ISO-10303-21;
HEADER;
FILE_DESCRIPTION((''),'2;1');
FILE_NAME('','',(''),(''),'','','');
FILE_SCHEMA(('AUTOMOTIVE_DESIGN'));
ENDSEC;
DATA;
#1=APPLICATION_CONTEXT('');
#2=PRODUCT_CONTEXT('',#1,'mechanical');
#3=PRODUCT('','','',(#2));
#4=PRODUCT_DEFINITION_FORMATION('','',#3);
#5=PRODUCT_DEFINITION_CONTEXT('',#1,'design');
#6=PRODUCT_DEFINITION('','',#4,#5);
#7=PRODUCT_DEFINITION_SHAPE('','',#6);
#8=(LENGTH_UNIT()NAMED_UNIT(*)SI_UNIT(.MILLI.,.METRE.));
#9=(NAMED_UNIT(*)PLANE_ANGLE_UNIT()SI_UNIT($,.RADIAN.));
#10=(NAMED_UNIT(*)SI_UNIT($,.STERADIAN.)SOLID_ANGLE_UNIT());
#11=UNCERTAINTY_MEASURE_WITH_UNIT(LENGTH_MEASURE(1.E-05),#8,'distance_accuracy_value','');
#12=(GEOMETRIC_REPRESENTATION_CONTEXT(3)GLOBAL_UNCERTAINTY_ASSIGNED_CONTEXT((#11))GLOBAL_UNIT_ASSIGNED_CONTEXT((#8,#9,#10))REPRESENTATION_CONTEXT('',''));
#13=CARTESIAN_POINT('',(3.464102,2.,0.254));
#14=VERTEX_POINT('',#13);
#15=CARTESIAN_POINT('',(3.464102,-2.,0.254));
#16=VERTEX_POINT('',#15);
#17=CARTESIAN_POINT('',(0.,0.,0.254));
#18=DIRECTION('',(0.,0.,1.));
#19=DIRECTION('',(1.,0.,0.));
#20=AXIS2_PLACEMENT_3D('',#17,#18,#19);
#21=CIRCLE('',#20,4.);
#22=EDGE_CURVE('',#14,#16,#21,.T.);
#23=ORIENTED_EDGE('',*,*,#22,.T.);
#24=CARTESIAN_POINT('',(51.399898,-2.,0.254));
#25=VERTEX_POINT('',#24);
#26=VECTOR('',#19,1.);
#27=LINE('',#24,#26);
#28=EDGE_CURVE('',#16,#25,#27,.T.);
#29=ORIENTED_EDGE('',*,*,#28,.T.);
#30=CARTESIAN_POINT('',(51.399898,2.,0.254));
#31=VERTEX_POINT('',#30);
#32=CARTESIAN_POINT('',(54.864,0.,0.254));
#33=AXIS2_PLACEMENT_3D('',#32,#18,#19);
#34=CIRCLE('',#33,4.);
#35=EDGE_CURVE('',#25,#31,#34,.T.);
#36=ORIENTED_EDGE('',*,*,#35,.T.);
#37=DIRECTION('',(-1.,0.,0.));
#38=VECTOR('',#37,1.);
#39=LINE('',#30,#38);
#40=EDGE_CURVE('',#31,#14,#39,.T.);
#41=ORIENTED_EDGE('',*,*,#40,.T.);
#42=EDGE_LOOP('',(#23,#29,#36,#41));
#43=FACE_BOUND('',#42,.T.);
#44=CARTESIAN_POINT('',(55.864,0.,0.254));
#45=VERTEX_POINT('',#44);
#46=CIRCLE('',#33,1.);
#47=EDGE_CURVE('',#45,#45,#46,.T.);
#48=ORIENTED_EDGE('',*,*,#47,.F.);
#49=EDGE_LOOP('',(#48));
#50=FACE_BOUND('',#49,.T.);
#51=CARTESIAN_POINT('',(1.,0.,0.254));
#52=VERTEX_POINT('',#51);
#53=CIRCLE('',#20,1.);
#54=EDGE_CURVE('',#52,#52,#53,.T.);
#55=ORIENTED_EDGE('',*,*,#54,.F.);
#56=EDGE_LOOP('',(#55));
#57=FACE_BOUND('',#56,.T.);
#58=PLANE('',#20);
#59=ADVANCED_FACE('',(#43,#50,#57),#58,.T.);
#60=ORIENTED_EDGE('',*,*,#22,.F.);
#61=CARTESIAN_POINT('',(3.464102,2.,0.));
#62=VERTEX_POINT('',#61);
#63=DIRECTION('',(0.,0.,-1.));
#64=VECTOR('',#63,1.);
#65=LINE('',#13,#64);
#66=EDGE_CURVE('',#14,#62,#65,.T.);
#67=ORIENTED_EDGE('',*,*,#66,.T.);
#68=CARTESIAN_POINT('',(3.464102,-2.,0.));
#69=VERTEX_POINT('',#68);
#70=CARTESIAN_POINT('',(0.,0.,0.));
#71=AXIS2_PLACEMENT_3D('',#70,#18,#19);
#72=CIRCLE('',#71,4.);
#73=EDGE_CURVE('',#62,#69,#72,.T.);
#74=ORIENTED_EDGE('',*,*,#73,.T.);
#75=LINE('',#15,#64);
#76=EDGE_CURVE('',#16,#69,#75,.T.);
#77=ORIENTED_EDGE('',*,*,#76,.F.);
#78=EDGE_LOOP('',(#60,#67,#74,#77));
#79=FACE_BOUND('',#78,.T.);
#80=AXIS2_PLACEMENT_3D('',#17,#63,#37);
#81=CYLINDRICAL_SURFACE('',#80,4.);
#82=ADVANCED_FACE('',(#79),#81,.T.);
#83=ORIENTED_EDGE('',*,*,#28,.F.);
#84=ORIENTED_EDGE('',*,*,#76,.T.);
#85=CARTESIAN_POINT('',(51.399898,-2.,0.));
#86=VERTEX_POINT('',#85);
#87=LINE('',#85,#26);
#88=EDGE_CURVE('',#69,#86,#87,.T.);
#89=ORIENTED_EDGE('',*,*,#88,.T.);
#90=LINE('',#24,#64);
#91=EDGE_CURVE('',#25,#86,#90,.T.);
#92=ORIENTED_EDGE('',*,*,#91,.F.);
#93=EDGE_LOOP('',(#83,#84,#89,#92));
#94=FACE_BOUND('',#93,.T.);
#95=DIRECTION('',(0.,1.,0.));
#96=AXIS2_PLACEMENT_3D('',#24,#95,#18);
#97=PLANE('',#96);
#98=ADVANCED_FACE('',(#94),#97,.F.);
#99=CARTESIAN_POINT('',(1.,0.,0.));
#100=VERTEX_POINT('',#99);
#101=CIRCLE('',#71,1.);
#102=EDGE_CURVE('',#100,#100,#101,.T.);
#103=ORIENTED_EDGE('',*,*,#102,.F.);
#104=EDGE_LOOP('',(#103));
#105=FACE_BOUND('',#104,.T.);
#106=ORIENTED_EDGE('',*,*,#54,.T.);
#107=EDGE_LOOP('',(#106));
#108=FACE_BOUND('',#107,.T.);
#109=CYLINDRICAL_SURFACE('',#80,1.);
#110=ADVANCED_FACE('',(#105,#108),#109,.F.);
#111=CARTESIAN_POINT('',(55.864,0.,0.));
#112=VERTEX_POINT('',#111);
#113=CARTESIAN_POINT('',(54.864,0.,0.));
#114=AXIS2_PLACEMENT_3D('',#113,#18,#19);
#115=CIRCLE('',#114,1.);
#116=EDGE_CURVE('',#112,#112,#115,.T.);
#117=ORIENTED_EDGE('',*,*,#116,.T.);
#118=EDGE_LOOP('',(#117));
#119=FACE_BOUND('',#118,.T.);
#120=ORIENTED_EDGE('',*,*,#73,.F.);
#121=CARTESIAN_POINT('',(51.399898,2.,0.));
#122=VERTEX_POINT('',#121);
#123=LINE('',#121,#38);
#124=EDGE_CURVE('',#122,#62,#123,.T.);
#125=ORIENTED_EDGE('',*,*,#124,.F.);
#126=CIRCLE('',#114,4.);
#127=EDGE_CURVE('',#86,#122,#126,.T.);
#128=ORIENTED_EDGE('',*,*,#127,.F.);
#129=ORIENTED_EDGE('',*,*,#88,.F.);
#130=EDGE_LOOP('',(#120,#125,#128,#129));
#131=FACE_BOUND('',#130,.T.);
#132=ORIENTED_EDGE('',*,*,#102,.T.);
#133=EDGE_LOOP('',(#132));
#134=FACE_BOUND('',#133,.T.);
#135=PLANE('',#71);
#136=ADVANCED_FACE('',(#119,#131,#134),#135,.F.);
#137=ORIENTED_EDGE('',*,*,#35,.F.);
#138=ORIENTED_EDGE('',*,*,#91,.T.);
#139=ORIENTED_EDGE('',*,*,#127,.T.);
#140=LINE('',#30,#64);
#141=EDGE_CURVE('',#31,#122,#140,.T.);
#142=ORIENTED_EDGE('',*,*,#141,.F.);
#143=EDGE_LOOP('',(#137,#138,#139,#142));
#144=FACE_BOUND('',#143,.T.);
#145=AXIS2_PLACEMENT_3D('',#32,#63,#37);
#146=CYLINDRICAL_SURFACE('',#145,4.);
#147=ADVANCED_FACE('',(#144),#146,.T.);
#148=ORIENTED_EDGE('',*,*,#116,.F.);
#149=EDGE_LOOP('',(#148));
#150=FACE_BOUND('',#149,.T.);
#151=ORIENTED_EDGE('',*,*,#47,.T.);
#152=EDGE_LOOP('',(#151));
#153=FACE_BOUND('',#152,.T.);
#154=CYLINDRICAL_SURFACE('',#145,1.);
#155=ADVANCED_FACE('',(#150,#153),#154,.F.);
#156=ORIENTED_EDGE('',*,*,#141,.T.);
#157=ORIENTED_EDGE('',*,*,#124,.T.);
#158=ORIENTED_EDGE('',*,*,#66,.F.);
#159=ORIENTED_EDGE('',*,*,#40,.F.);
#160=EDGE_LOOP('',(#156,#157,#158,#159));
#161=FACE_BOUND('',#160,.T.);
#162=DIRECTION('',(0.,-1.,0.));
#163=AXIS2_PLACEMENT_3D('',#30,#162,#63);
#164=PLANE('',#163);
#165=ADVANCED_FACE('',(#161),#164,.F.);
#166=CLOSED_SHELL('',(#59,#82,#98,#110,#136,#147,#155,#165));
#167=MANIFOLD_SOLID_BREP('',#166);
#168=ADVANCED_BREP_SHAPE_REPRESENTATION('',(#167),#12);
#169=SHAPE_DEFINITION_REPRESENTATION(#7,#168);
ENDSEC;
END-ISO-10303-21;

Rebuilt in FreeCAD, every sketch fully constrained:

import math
import FreeCAD as App
import Part
import Sketcher
from FreeCAD import Vector

doc = App.newDocument("Part")
body = doc.addObject("PartDesign::Body", "Body")

# Sketch on XY plane
sketch1 = doc.addObject("Sketcher::SketchObject", "Sketch")
body.addObject(sketch1)
sketch1.AttachmentSupport = (doc.XY_Plane, [""])
sketch1.MapMode = "FlatFace"
sketch1.addGeometry(Part.LineSegment(Vector(54.864, 4, 0), Vector(0, 4, 0)), False)
sketch1.addGeometry(Part.ArcOfCircle(Part.Circle(Vector(0, 0, 0), Vector(0, 0, 1), 4), math.radians(90), math.radians(270)), False)
sketch1.addGeometry(Part.LineSegment(Vector(0, -4, 0), Vector(54.864, -4, 0)), False)
sketch1.addGeometry(Part.ArcOfCircle(Part.Circle(Vector(54.864, 0, 0), Vector(0, 0, 1), 4), math.radians(-90), math.radians(90)), False)
sketch1.addGeometry(Part.Circle(Vector(54.864, 0, 0), Vector(0, 0, 1), 1), False)
sketch1.addGeometry(Part.Circle(Vector(0, 0, 0), Vector(0, 0, 1), 1), False)
sketch1.addConstraint(Sketcher.Constraint("Tangent", 0, 2, 1, 1))
sketch1.addConstraint(Sketcher.Constraint("Tangent", 1, 2, 2, 1))
sketch1.addConstraint(Sketcher.Constraint("Tangent", 2, 2, 3, 1))
sketch1.addConstraint(Sketcher.Constraint("Tangent", 3, 2, 0, 1))
sketch1.addConstraint(Sketcher.Constraint("Horizontal", 0))
sketch1.addConstraint(Sketcher.Constraint("Horizontal", 2))
sketch1.addConstraint(Sketcher.Constraint("Coincident", 1, 3, -1, 1))
sketch1.addConstraint(Sketcher.Constraint("Coincident", 5, 3, -1, 1))
sketch1.addConstraint(Sketcher.Constraint("Coincident", 4, 3, 3, 3))
sketch1.addConstraint(Sketcher.Constraint("Equal", 4, 5))
sketch1.addConstraint(Sketcher.Constraint("Diameter", 4, 2.0))
sketch1.addConstraint(Sketcher.Constraint("Radius", 1, 4.0))
sketch1.addConstraint(Sketcher.Constraint("DistanceX", 0, 2, 0, 1, 54.864))
pad1 = doc.addObject("PartDesign::Pad", "Pad")
body.addObject(pad1)
pad1.Profile = sketch1
pad1.Length = 0.254

# Sketch on XY plane
sketch2 = doc.addObject("Sketcher::SketchObject", "Sketch001")
body.addObject(sketch2)
sketch2.AttachmentSupport = (doc.XY_Plane, [""])
sketch2.MapMode = "FlatFace"
sketch2.addGeometry(Part.LineSegment(Vector(51.399898, 2, 0), Vector(3.464102, 2, 0)), False)
sketch2.addGeometry(Part.ArcOfCircle(Part.Circle(Vector(0, 0, 0), Vector(0, 0, 1), 4), math.radians(30), math.radians(90)), False)
sketch2.addGeometry(Part.LineSegment(Vector(0, 4, 0), Vector(54.864, 4, 0)), False)
sketch2.addGeometry(Part.ArcOfCircle(Part.Circle(Vector(54.864, 0, 0), Vector(0, 0, 1), 4), math.radians(90), math.radians(150)), False)
sketch2.addGeometry(Part.LineSegment(Vector(3.464102, -2, 0), Vector(51.399898, -2, 0)), False)
sketch2.addGeometry(Part.ArcOfCircle(Part.Circle(Vector(54.864, 0, 0), Vector(0, 0, 1), 4), math.radians(-150), math.radians(-90)), False)
sketch2.addGeometry(Part.LineSegment(Vector(54.864, -4, 0), Vector(0, -4, 0)), False)
sketch2.addGeometry(Part.ArcOfCircle(Part.Circle(Vector(0, 0, 0), Vector(0, 0, 1), 4), math.radians(-90), math.radians(-30)), False)
sketch2.addConstraint(Sketcher.Constraint("Coincident", 0, 2, 1, 1))
sketch2.addConstraint(Sketcher.Constraint("Tangent", 1, 2, 2, 1))
sketch2.addConstraint(Sketcher.Constraint("Tangent", 2, 2, 3, 1))
sketch2.addConstraint(Sketcher.Constraint("Coincident", 3, 2, 0, 1))
sketch2.addConstraint(Sketcher.Constraint("Coincident", 4, 2, 5, 1))
sketch2.addConstraint(Sketcher.Constraint("Tangent", 5, 2, 6, 1))
sketch2.addConstraint(Sketcher.Constraint("Tangent", 6, 2, 7, 1))
sketch2.addConstraint(Sketcher.Constraint("Coincident", 7, 2, 4, 1))
sketch2.addConstraint(Sketcher.Constraint("Horizontal", 0))
sketch2.addConstraint(Sketcher.Constraint("Horizontal", 2))
sketch2.addConstraint(Sketcher.Constraint("Horizontal", 4))
sketch2.addConstraint(Sketcher.Constraint("Horizontal", 6))
sketch2.addConstraint(Sketcher.Constraint("Coincident", 1, 3, -1, 1))
sketch2.addConstraint(Sketcher.Constraint("Coincident", 7, 3, -1, 1))
sketch2.addConstraint(Sketcher.Constraint("Coincident", 5, 3, 3, 3))
sketch2.addConstraint(Sketcher.Constraint("Equal", 1, 3))
sketch2.addConstraint(Sketcher.Constraint("Equal", 3, 5))
sketch2.addConstraint(Sketcher.Constraint("Vertical", 3, 2, 4, 2))
sketch2.addConstraint(Sketcher.Constraint("Radius", 1, 4.0))
sketch2.addConstraint(Sketcher.Constraint("DistanceY", -1, 1, 0, 2, 2.0))
sketch2.addConstraint(Sketcher.Constraint("DistanceX", 2, 1, 2, 2, 54.864))
pocket1 = doc.addObject("PartDesign::Pocket", "Pocket")
body.addObject(pocket1)
pocket1.Profile = sketch2
pocket1.Type = "ThroughAll"
pocket1.Reversed = True

doc.recompute()
